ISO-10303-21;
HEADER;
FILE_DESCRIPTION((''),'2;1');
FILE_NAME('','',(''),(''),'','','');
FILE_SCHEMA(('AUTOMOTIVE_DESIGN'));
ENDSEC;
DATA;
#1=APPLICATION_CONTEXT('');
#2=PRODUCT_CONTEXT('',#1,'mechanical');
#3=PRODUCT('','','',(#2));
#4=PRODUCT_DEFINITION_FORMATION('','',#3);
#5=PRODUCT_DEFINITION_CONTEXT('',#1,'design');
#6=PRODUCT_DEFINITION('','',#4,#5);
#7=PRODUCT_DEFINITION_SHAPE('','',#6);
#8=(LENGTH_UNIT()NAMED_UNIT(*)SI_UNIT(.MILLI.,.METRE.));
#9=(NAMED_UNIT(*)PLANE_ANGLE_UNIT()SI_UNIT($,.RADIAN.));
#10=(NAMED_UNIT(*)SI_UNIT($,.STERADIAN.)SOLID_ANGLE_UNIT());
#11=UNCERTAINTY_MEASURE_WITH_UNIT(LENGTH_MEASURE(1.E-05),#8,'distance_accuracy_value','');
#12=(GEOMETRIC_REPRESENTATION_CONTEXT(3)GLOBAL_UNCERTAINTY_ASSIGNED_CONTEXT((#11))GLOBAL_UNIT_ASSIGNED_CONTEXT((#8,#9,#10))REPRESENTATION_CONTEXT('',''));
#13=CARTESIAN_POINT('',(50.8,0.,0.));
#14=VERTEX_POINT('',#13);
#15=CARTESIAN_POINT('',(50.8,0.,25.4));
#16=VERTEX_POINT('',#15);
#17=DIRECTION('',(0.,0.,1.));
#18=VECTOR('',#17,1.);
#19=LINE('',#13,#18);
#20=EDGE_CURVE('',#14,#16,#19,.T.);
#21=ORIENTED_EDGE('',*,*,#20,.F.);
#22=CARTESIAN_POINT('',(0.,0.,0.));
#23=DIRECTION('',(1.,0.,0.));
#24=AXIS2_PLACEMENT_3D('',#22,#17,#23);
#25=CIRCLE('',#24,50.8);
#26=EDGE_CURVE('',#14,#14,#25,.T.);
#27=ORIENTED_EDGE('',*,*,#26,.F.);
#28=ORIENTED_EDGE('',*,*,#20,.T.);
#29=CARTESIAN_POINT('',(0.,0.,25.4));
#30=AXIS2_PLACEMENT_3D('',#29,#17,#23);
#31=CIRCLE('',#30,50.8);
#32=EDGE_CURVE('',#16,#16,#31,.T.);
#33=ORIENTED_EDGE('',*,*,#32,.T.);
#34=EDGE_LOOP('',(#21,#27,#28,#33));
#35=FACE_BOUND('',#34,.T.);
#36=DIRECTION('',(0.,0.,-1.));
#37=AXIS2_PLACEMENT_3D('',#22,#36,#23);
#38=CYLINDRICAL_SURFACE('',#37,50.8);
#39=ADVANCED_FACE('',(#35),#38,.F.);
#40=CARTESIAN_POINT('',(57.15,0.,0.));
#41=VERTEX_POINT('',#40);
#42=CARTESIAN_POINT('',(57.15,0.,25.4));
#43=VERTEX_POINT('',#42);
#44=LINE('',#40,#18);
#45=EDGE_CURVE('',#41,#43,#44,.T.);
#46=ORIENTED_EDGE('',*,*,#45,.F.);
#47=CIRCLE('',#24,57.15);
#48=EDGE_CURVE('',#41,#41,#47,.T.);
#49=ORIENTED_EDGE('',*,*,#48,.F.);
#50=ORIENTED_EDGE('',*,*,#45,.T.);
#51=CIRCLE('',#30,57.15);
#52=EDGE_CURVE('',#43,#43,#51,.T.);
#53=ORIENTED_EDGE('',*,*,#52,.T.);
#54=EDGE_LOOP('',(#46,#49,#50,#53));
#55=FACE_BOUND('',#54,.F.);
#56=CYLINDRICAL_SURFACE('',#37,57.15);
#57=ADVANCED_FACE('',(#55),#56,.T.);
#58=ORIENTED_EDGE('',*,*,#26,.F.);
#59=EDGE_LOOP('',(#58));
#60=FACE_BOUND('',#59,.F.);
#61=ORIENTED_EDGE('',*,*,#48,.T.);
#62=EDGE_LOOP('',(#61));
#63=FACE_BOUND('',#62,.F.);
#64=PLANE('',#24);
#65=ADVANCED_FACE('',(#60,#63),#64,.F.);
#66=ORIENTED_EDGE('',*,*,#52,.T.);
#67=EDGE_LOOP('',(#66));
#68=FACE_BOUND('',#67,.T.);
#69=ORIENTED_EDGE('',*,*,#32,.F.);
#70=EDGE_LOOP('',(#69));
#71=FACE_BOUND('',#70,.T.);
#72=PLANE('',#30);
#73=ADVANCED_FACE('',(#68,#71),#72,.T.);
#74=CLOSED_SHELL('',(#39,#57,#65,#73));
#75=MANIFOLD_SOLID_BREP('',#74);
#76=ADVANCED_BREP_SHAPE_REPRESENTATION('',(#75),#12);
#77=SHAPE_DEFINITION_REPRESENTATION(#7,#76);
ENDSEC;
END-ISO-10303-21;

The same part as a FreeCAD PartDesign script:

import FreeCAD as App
import Part
import Sketcher
from FreeCAD import Vector
Q = App.Units.Quantity

doc = App.newDocument("Part")
body = doc.addObject("PartDesign::Body", "Body")

# Sketch on XY plane
sketch1 = body.newObject("Sketcher::SketchObject", "Sketch")
sketch1.AttachmentSupport = (doc.getObject("XY_Plane"), [""])
sketch1.MapMode = "FlatFace"
sketch1.addGeometry(Part.Circle(Vector(0, 0, 0), Vector(0, 0, 1), 57), False)
sketch1.addGeometry(Part.Circle(Vector(0, 0, 0), Vector(0, 0, 1), 51), False)
sketch1.addConstraint(Sketcher.Constraint("Coincident", 0, 3, -1, 1))
sketch1.addConstraint(Sketcher.Constraint("Coincident", 1, 3, -1, 1))
sketch1.addConstraint(Sketcher.Constraint("Diameter", 1, Q("4 in")))
sketch1.addConstraint(Sketcher.Constraint("Diameter", 0, Q("4.5 in")))
pad1 = body.newObject("PartDesign::Pad", "Pad")
pad1.Profile = sketch1
pad1.Length = Q("1 in")

doc.recompute()
